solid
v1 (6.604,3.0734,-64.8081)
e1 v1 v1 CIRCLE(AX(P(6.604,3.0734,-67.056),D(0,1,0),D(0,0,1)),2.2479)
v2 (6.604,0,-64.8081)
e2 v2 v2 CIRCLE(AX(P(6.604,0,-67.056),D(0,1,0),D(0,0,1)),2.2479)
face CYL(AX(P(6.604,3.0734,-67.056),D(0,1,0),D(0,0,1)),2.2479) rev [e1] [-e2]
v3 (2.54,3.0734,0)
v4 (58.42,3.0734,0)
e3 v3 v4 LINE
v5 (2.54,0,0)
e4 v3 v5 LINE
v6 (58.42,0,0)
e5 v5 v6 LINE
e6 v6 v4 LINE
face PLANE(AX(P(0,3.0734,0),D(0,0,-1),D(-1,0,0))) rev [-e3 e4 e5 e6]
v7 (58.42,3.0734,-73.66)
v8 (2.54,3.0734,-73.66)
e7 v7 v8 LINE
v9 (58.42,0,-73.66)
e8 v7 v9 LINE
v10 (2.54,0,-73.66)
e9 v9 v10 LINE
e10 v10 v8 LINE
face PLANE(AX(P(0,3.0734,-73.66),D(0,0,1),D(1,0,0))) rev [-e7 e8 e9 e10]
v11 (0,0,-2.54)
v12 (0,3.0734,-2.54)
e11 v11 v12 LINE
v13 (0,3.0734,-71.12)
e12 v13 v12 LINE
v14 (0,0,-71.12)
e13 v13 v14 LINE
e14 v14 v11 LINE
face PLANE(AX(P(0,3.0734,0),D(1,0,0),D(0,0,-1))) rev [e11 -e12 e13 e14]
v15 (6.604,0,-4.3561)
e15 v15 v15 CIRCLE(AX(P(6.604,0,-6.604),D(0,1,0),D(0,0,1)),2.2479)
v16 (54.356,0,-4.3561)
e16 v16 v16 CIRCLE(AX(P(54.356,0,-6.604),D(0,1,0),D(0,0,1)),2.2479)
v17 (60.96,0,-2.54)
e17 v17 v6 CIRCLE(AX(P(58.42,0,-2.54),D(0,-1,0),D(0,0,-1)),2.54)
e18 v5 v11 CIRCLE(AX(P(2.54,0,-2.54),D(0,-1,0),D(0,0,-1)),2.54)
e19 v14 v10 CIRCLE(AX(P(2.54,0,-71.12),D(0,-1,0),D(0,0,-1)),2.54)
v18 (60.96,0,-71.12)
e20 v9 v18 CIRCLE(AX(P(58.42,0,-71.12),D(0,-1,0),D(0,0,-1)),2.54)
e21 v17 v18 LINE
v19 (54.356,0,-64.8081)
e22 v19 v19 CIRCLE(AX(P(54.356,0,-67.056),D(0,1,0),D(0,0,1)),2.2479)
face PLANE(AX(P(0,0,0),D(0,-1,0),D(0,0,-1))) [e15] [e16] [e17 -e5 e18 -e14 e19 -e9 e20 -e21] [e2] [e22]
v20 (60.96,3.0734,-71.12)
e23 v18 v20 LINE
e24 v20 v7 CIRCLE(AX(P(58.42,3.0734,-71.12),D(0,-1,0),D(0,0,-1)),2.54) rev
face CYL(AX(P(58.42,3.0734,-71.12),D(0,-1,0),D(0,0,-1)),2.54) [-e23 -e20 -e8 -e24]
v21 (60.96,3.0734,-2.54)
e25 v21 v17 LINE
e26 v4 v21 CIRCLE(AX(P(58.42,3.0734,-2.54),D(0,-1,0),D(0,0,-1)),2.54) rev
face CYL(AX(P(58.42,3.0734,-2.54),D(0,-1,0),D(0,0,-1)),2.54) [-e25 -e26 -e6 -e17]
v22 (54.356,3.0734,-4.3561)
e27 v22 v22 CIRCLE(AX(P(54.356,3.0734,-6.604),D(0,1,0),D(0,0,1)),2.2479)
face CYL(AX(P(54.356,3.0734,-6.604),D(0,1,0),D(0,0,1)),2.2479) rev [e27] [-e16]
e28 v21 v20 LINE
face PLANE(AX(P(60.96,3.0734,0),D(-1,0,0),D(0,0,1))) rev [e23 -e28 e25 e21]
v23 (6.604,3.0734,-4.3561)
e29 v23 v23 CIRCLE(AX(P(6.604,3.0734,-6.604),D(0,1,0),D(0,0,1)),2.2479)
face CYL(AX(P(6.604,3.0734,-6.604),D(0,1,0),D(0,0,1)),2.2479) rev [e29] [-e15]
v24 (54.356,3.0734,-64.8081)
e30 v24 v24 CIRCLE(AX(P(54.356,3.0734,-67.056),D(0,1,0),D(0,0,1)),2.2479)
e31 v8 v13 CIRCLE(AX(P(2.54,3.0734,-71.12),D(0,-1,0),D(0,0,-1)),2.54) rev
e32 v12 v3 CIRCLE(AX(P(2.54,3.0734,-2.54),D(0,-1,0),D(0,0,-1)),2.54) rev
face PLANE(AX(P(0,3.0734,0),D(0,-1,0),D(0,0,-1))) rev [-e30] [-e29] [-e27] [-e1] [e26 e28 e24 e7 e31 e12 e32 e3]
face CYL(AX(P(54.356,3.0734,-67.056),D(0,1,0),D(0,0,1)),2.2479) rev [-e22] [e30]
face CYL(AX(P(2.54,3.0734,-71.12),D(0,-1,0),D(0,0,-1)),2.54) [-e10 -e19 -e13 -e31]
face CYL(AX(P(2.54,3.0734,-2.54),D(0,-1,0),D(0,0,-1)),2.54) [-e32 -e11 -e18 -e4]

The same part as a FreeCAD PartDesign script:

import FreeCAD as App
import Part
import Sketcher
from FreeCAD import Vector
Q = App.Units.Quantity


def edges_at(feature, points):
    """Names of the edges that pass closest to the given points."""
    edges = feature.Shape.Edges
    near = lambda p: min(range(len(edges)), key=lambda i: edges[i].distToShape(Part.Vertex(*p))[0])
    return sorted({f"Edge{near(p) + 1}" for p in points})

doc = App.newDocument("Part")
params = doc.addObject("Spreadsheet::Sheet", "Params")
for row, (alias, value) in enumerate([
    ("sketch1_width", "2.4 in"),
    ("sketch1_height", "2.9 in"),
    ("pad1_length", "0.121 in"),
    ("fillet_radius", "0.1 in"),
    ("sketch2_diameter", "0.177 in"),
    ("hole_diameter", "0.177 in"),
], start=1):
    params.set(f"A{row}", alias)
    params.set(f"B{row}", "=" + value)
    params.setAlias(f"B{row}", alias)

body = doc.addObject("PartDesign::Body", "Body")

# Sketch on XZ plane
sketch1 = body.newObject("Sketcher::SketchObject", "Sketch")
sketch1.AttachmentSupport = (doc.getObject("XZ_Plane"), [""])
sketch1.MapMode = "FlatFace"
sketch1.addGeometry([
    Part.LineSegment(Vector(0, -74, 0), Vector(0, 0, 0)),
    Part.LineSegment(Vector(0, 0, 0), Vector(61, 0, 0)),
    Part.LineSegment(Vector(61, 0, 0), Vector(61, -74, 0)),
    Part.LineSegment(Vector(61, -74, 0), Vector(0, -74, 0)),
], False)
sketch1.addConstraint([
    Sketcher.Constraint("Coincident", 0, 2, 1, 1),
    Sketcher.Constraint("Coincident", 1, 2, 2, 1),
    Sketcher.Constraint("Coincident", 2, 2, 3, 1),
    Sketcher.Constraint("Coincident", 3, 2, 0, 1),
    Sketcher.Constraint("Vertical", 0),
    Sketcher.Constraint("Horizontal", 1),
    Sketcher.Constraint("Vertical", 2),
    Sketcher.Constraint("Horizontal", 3),
    Sketcher.Constraint("Coincident", 0, 2, -1, 1),
    Sketcher.Constraint("DistanceX", 1, 1, 1, 2, Q("2.4 in")),
    Sketcher.Constraint("DistanceY", 0, 1, 0, 2, Q("2.9 in")),
])
sketch1.setExpression("Constraints[9]", "Params.sketch1_width")
sketch1.setExpression("Constraints[10]", "Params.sketch1_height")
pad1 = body.newObject("PartDesign::Pad", "Pad")
pad1.Profile = sketch1
pad1.setExpression("Length", "Params.pad1_length")
pad1.Reversed = True
doc.recompute()

fillet = body.newObject("PartDesign::Fillet", "Fillet")
fillet.Base = (pad1, edges_at(pad1, [
    (0, 1.537, -73.66),
    (60.96, 1.537, -73.66),
    (60.96, 1.537, 0),
    (0, 1.537, 0),
]))
fillet.setExpression("Radius", "Params.fillet_radius")

# Sketch on XZ plane
sketch2 = body.newObject("Sketcher::SketchObject", "Sketch001")
sketch2.AttachmentSupport = (doc.getObject("XZ_Plane"), [""])
sketch2.MapMode = "FlatFace"
sketch2.AttachmentOffset = App.Placement(Vector(0, 0, -0.121 * 25.4), App.Rotation())
sketch2.addGeometry([
    Part.Circle(Vector(54.4, -67.1, 0), Vector(0, 0, 1), 2.2),
    Part.Circle(Vector(54.4, -6.6, 0), Vector(0, 0, 1), 2.2),
    Part.Circle(Vector(6.6, -67.1, 0), Vector(0, 0, 1), 2.2),
    Part.Circle(Vector(6.6, -6.6, 0), Vector(0, 0, 1), 2.2),
], False)
sketch2.addConstraint([
    Sketcher.Constraint("Equal", 0, 1),
    Sketcher.Constraint("Equal", 1, 2),
    Sketcher.Constraint("Equal", 2, 3),
    Sketcher.Constraint("Horizontal", 0, 3, 2, 3),
    Sketcher.Constraint("Horizontal", 1, 3, 3, 3),
    Sketcher.Constraint("Vertical", 0, 3, 1, 3),
    Sketcher.Constraint("Vertical", 2, 3, 3, 3),
    Sketcher.Constraint("Diameter", 0, Q("0.177 in")),
    Sketcher.Constraint("DistanceX", -1, 1, 0, 3, Q("2.14 in")),
    Sketcher.Constraint("DistanceY", 0, 3, -1, 1, Q("2.64 in")),
    Sketcher.Constraint("DistanceY", 1, 3, -1, 1, Q("0.26 in")),
    Sketcher.Constraint("DistanceX", -1, 1, 2, 3, Q("0.26 in")),
])
sketch2.setExpression("Constraints[7]", "Params.sketch2_diameter")
doc.recompute()
hole = body.newObject("PartDesign::Hole", "Hole")
hole.Profile = sketch2
hole.ThreadType = "None"
hole.setExpression("Diameter", "Params.hole_diameter")
hole.DepthType = "ThroughAll"
hole.Reversed = True

doc.recompute()
